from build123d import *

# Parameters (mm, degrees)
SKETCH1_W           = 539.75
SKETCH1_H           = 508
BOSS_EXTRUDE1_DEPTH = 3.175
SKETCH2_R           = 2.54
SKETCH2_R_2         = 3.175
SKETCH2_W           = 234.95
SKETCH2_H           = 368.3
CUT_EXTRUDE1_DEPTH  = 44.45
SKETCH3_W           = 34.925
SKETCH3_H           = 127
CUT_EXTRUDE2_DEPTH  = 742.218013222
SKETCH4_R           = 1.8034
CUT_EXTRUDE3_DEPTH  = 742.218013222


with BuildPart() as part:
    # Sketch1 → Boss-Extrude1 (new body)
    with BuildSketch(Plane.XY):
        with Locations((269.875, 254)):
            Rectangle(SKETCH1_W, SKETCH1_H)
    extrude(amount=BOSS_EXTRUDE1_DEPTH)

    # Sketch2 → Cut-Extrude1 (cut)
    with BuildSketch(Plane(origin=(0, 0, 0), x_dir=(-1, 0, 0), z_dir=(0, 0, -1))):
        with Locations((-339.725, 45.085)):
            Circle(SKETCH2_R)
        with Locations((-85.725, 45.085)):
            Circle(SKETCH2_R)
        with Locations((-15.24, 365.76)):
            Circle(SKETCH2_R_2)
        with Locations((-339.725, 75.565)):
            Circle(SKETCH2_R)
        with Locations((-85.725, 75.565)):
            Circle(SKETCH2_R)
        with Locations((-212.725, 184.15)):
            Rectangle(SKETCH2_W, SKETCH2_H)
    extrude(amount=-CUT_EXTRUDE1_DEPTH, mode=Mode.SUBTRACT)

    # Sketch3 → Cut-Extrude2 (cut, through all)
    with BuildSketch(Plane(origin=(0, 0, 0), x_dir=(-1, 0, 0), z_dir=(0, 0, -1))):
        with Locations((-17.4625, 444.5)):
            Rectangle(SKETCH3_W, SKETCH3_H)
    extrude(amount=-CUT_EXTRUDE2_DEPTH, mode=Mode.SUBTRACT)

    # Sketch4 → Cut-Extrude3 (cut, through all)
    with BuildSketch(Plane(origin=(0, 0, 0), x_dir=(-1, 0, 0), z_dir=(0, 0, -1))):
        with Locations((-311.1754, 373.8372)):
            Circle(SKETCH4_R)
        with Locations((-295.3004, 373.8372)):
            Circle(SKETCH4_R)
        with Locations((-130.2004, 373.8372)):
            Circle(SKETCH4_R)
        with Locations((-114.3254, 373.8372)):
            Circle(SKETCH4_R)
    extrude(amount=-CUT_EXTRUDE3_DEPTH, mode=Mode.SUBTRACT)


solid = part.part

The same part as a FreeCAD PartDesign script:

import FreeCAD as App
import Part
import Sketcher

V = App.Vector
Q = App.Units.Quantity


def add_polygon(sketch, points):
    """Adds a closed chain of lines whose ends are joined by coincident constraints."""
    first, n = sketch.GeometryCount, len(points)
    for a, b in zip(points, points[1:] + points[:1]):
        sketch.addGeometry(Part.LineSegment(App.Vector(*a, 0), App.Vector(*b, 0)), False)
    for i in range(n):
        sketch.addConstraint(Sketcher.Constraint("Coincident", first + i, 2, first + (i + 1) % n, 1))

doc = App.newDocument("Part")
body = doc.addObject("PartDesign::Body", "Body")

# Sketch on XY plane
sketch1 = body.newObject("Sketcher::SketchObject", "Sketch")
sketch1.AttachmentSupport = (doc.getObject("XY_Plane"), [""])
sketch1.MapMode = "FlatFace"
add_polygon(sketch1, [(0, 508), (0, 0), (539.75, 0), (539.75, 508)])  # lines 0-3
sketch1.addConstraint(Sketcher.Constraint("Vertical", 0))
sketch1.addConstraint(Sketcher.Constraint("Horizontal", 1))
sketch1.addConstraint(Sketcher.Constraint("Vertical", 2))
sketch1.addConstraint(Sketcher.Constraint("Horizontal", 3))
sketch1.addConstraint(Sketcher.Constraint("Coincident", 0, 2, -1, 1))
sketch1.addConstraint(Sketcher.Constraint("DistanceY", 0, 2, 0, 1, Q("20 in")))
sketch1.addConstraint(Sketcher.Constraint("DistanceX", 1, 1, 1, 2, Q("21.25 in")))
pad1 = body.newObject("PartDesign::Pad", "Pad")
pad1.Profile = sketch1
pad1.Length = Q("0.125 in")

# Sketch on XY plane
sketch2 = body.newObject("Sketcher::SketchObject", "Sketch001")
sketch2.AttachmentSupport = (doc.getObject("XY_Plane"), [""])
sketch2.MapMode = "FlatFace"
sketch2.addGeometry(Part.Circle(V(339.725, 45.085, 0), V(0, 0, 1), 2.54), False)  # 0
sketch2.addGeometry(Part.Circle(V(85.725, 45.085, 0), V(0, 0, 1), 2.54), False)  # 1
sketch2.addGeometry(Part.Circle(V(15.24, 365.76, 0), V(0, 0, 1), 3.175), False)  # 2
sketch2.addGeometry(Part.Circle(V(339.725, 75.565, 0), V(0, 0, 1), 2.54), False)  # 3
sketch2.addGeometry(Part.Circle(V(85.725, 75.565, 0), V(0, 0, 1), 2.54), False)  # 4
add_polygon(sketch2, [(330.2, 368.3), (330.2, 0), (95.25, 0), (95.25, 368.3)])  # lines 5-8
sketch2.addConstraint(Sketcher.Constraint("Vertical", 5))
sketch2.addConstraint(Sketcher.Constraint("Horizontal", 6))
sketch2.addConstraint(Sketcher.Constraint("Vertical", 7))
sketch2.addConstraint(Sketcher.Constraint("Horizontal", 8))
sketch2.addConstraint(Sketcher.Constraint("Equal", 0, 1))
sketch2.addConstraint(Sketcher.Constraint("Equal", 1, 3))
sketch2.addConstraint(Sketcher.Constraint("Equal", 3, 4))
sketch2.addConstraint(Sketcher.Constraint("PointOnObject", 5, 2, -1))
sketch2.addConstraint(Sketcher.Constraint("Horizontal", 0, 3, 1, 3))
sketch2.addConstraint(Sketcher.Constraint("Horizontal", 3, 3, 4, 3))
sketch2.addConstraint(Sketcher.Constraint("Vertical", 0, 3, 3, 3))
sketch2.addConstraint(Sketcher.Constraint("Vertical", 1, 3, 4, 3))
sketch2.addConstraint(Sketcher.Constraint("Diameter", 0, Q("0.2 in")))
sketch2.addConstraint(Sketcher.Constraint("Diameter", 2, Q("0.25 in")))
sketch2.addConstraint(Sketcher.Constraint("DistanceY", 5, 2, 5, 1, Q("14.5 in")))
sketch2.addConstraint(Sketcher.Constraint("DistanceX", -1, 1, 5, 2, Q("13 in")))
sketch2.addConstraint(Sketcher.Constraint("DistanceX", 1, 3, 0, 3, Q("10 in")))
sketch2.addConstraint(Sketcher.Constraint("DistanceX", 6, 2, 6, 1, Q("9.25 in")))
sketch2.addConstraint(Sketcher.Constraint("DistanceX", -1, 1, 2, 3, Q("0.6 in")))
sketch2.addConstraint(Sketcher.Constraint("DistanceY", -1, 1, 2, 3, Q("14.4 in")))
sketch2.addConstraint(Sketcher.Constraint("DistanceY", 0, 3, 3, 3, Q("1.2 in")))
sketch2.addConstraint(Sketcher.Constraint("DistanceX", -1, 1, 0, 3, Q("13.375 in")))
sketch2.addConstraint(Sketcher.Constraint("DistanceY", -1, 1, 0, 3, Q("1.775 in")))
pocket1 = body.newObject("PartDesign::Pocket", "Pocket")
pocket1.Profile = sketch2
pocket1.Length = Q("1.75 in")
pocket1.Reversed = True

# Sketch on XY plane
sketch3 = body.newObject("Sketcher::SketchObject", "Sketch002")
sketch3.AttachmentSupport = (doc.getObject("XY_Plane"), [""])
sketch3.MapMode = "FlatFace"
add_polygon(sketch3, [(34.925, 508), (34.925, 381), (0, 381), (0, 508)])  # lines 0-3
sketch3.addConstraint(Sketcher.Constraint("Vertical", 0))
sketch3.addConstraint(Sketcher.Constraint("Horizontal", 1))
sketch3.addConstraint(Sketcher.Constraint("Vertical", 2))
sketch3.addConstraint(Sketcher.Constraint("Horizontal", 3))
sketch3.addConstraint(Sketcher.Constraint("PointOnObject", 1, 2, -2))
sketch3.addConstraint(Sketcher.Constraint("DistanceY", 0, 2, 0, 1, Q("5 in")))
sketch3.addConstraint(Sketcher.Constraint("DistanceY", -1, 1, 0, 2, Q("15 in")))
sketch3.addConstraint(Sketcher.Constraint("DistanceX", 1, 2, 1, 1, Q("1.375 in")))
pocket2 = body.newObject("PartDesign::Pocket", "Pocket001")
pocket2.Profile = sketch3
pocket2.Type = "ThroughAll"
pocket2.Reversed = True

# Sketch on XY plane
sketch4 = body.newObject("Sketcher::SketchObject", "Sketch003")
sketch4.AttachmentSupport = (doc.getObject("XY_Plane"), [""])
sketch4.MapMode = "FlatFace"
sketch4.addGeometry(Part.Circle(V(311.1754, 373.8372, 0), V(0, 0, 1), 1.8034), False)
sketch4.addGeometry(Part.Circle(V(295.3004, 373.8372, 0), V(0, 0, 1), 1.8034), False)
sketch4.addGeometry(Part.Circle(V(130.2004, 373.8372, 0), V(0, 0, 1), 1.8034), False)
sketch4.addGeometry(Part.Circle(V(114.3254, 373.8372, 0), V(0, 0, 1), 1.8034), False)
sketch4.addConstraint(Sketcher.Constraint("Equal", 0, 1))
sketch4.addConstraint(Sketcher.Constraint("Equal", 1, 2))
sketch4.addConstraint(Sketcher.Constraint("Equal", 2, 3))
sketch4.addConstraint(Sketcher.Constraint("Horizontal", 0, 3, 1, 3))
sketch4.addConstraint(Sketcher.Constraint("Horizontal", 1, 3, 2, 3))
sketch4.addConstraint(Sketcher.Constraint("Horizontal", 2, 3, 3, 3))
sketch4.addConstraint(Sketcher.Constraint("Diameter", 0, Q("0.142 in")))
sketch4.addConstraint(Sketcher.Constraint("DistanceX", 2, 3, 1, 3, Q("6.5 in")))
sketch4.addConstraint(Sketcher.Constraint("DistanceX", 3, 3, 0, 3, Q("7.75 in")))
sketch4.addConstraint(Sketcher.Constraint("DistanceX", -1, 1, 0, 3, Q("12.251 in")))
sketch4.addConstraint(Sketcher.Constraint("DistanceY", -1, 1, 0, 3, Q("14.718 in")))
sketch4.addConstraint(Sketcher.Constraint("DistanceX", -1, 1, 1, 3, Q("11.626 in")))
pocket3 = body.newObject("PartDesign::Pocket", "Pocket002")
pocket3.Profile = sketch4
pocket3.Type = "ThroughAll"
pocket3.Reversed = True

doc.recompute()
